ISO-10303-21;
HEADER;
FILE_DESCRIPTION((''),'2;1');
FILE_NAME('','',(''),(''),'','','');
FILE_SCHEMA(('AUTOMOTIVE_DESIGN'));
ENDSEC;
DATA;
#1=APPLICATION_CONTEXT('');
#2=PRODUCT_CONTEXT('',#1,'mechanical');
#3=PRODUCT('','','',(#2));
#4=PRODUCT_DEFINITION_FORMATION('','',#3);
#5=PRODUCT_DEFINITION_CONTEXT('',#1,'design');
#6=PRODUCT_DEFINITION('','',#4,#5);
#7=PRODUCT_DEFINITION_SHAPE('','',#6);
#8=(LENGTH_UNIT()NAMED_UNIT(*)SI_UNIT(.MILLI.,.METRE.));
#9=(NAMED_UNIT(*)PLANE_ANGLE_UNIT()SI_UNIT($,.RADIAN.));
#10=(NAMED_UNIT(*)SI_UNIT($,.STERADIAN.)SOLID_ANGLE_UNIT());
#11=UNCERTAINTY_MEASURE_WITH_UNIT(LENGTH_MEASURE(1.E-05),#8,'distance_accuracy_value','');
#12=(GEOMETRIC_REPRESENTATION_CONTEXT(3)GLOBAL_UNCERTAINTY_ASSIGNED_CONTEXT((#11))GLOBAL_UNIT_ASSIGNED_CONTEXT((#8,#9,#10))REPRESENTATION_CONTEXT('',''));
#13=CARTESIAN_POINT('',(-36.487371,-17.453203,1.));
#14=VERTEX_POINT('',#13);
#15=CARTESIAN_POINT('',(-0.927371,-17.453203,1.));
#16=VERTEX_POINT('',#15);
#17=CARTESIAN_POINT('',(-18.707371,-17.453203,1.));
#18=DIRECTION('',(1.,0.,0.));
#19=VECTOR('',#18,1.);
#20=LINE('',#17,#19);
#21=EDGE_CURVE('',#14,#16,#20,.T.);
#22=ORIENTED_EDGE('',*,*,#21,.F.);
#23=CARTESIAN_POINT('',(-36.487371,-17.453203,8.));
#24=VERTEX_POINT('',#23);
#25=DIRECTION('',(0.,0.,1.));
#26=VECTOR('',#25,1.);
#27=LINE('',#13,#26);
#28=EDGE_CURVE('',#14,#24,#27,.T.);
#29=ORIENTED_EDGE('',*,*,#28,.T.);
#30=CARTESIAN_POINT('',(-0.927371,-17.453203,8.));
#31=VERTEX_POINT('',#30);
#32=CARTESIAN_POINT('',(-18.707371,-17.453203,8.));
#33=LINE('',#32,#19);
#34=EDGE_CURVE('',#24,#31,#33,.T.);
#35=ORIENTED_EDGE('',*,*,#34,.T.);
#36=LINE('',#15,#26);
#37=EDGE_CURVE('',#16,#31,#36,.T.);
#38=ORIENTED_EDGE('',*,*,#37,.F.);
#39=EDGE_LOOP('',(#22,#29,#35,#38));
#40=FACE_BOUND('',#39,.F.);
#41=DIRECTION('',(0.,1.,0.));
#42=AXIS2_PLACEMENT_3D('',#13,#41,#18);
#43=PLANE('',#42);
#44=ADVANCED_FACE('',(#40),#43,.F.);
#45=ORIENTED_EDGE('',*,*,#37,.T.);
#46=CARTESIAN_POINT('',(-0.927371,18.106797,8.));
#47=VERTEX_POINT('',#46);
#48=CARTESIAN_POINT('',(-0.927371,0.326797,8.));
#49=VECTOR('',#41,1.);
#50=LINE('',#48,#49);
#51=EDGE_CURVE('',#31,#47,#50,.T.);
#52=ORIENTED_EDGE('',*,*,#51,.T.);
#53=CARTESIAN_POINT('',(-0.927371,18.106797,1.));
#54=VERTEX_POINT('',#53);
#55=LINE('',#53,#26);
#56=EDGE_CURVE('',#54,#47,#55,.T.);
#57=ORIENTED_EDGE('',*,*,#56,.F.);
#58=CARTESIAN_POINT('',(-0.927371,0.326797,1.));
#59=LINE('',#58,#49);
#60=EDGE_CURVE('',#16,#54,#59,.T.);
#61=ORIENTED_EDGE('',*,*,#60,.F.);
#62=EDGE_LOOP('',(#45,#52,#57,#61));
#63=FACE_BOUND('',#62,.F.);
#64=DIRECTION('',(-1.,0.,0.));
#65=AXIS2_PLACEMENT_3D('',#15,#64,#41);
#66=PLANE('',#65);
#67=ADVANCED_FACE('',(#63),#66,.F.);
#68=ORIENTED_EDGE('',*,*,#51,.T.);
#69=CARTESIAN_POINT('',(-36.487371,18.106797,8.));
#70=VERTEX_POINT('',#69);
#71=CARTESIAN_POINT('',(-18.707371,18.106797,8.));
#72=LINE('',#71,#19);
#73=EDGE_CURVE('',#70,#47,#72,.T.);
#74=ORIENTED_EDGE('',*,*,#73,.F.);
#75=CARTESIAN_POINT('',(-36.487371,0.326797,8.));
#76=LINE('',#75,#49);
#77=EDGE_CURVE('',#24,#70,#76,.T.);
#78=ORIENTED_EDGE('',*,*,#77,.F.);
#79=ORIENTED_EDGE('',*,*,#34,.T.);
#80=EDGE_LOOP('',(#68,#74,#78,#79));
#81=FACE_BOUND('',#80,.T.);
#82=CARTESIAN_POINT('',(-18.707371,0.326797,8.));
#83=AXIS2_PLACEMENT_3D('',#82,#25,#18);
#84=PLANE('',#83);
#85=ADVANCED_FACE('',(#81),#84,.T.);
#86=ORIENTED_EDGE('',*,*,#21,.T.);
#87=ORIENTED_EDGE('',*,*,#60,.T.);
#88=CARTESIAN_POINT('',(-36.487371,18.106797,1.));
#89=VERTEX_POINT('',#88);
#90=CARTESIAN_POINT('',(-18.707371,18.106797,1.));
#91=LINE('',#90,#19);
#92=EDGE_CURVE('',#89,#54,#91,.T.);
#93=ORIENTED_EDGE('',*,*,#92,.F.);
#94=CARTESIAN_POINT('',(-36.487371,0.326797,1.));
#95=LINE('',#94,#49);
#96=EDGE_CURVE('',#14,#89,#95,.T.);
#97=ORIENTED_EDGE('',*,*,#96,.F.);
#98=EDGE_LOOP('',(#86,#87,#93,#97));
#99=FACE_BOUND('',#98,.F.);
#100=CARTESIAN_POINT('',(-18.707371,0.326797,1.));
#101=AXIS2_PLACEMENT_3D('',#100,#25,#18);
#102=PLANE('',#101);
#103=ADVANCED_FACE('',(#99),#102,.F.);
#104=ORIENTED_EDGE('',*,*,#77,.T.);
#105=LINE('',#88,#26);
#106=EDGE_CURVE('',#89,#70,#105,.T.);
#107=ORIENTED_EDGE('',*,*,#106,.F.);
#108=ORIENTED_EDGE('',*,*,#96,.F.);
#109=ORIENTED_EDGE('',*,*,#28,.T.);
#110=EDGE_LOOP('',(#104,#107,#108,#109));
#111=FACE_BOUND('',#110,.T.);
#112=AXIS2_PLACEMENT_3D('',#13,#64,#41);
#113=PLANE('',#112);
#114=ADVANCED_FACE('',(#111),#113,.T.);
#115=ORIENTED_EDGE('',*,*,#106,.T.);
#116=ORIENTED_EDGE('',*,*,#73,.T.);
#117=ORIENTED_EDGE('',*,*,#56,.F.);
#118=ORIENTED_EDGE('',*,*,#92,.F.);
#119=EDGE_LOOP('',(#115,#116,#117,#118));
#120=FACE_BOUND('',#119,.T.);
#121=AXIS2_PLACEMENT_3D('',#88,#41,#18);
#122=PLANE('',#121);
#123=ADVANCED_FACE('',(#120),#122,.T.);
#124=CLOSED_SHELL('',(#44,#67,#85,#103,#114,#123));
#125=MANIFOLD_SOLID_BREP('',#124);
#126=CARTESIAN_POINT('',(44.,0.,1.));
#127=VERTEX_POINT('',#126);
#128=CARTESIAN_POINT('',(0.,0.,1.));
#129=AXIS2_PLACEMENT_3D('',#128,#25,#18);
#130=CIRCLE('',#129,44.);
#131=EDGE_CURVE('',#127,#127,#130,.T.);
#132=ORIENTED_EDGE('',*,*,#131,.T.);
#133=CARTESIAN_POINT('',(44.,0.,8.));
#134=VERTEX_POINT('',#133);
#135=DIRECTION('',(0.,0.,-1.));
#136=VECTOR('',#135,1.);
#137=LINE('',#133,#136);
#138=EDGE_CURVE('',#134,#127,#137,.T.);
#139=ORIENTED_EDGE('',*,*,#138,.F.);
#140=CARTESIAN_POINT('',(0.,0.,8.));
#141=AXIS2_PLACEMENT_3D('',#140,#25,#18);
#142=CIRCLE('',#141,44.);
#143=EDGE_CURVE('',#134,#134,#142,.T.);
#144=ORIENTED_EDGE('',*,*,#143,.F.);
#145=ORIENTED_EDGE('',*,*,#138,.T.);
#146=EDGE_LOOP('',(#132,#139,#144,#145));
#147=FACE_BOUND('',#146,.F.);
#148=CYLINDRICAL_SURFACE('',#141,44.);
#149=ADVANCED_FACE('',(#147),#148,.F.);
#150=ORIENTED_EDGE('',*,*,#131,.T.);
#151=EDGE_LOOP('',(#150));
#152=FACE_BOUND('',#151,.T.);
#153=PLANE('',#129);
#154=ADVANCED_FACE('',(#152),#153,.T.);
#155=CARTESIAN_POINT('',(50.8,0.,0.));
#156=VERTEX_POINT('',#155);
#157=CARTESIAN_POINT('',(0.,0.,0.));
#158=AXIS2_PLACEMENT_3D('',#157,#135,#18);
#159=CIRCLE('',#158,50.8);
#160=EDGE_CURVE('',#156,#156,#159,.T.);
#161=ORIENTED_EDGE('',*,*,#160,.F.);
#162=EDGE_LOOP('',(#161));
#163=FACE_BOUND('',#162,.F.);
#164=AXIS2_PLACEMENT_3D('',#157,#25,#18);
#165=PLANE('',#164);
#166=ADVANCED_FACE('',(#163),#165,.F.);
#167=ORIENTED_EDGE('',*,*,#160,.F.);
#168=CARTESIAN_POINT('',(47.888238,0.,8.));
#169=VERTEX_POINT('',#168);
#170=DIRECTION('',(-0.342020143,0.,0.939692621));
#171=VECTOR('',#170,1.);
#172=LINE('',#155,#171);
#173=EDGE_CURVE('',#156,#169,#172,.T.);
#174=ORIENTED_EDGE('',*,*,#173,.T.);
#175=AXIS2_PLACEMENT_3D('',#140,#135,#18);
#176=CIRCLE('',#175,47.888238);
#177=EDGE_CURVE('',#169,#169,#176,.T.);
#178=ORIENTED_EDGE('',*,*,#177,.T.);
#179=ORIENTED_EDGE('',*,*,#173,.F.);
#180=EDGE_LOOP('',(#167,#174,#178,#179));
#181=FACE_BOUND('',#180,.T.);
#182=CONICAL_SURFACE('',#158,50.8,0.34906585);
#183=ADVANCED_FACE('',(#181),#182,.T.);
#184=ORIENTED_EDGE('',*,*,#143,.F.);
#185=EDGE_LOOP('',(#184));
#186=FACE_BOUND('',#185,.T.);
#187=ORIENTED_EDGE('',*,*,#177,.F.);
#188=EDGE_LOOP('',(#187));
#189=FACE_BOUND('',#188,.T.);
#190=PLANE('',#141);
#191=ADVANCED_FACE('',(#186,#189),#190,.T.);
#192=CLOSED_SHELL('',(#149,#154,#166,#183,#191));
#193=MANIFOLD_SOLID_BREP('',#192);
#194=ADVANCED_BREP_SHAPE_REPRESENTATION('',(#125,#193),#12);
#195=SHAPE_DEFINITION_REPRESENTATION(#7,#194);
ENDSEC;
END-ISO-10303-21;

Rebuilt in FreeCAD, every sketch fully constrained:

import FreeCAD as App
import Part
import Sketcher
from FreeCAD import Vector


def add_polygon(sketch, points):
    """Adds a closed chain of lines whose ends are joined by coincident constraints."""
    first, n = sketch.GeometryCount, len(points)
    for a, b in zip(points, points[1:] + points[:1]):
        sketch.addGeometry(Part.LineSegment(App.Vector(*a, 0), App.Vector(*b, 0)), False)
    for i in range(n):
        sketch.addConstraint(Sketcher.Constraint("Coincident", first + i, 2, first + (i + 1) % n, 1))

doc = App.newDocument("Part")
body = doc.addObject("PartDesign::Body", "Body")

sketch1 = doc.addObject("Sketcher::SketchObject", "Sketch")
body.addObject(sketch1)
sketch1.AttachmentSupport = (doc.XY_Plane, [""])
sketch1.MapMode = "FlatFace"
sketch1.addGeometry(Part.Circle(Vector(0, 0, 0), Vector(0, 0, 1), 51), False)
sketch1.addConstraint(Sketcher.Constraint("Coincident", 0, 3, -1, 1))
sketch1.addConstraint(Sketcher.Constraint("Diameter", 0, 101.6))
pad1 = doc.addObject("PartDesign::Pad", "Pad")
body.addObject(pad1)
pad1.Profile = sketch1
pad1.Length = 8
pad1.TaperAngle = -20

sketch2 = doc.addObject("Sketcher::SketchObject", "Sketch001")
body.addObject(sketch2)
sketch2.AttachmentSupport = (doc.XY_Plane, [""])
sketch2.MapMode = "FlatFace"
sketch2.AttachmentOffset = App.Placement(Vector(0, 0, 8), App.Rotation())
sketch2.addGeometry(Part.Circle(Vector(0, 0, 0), Vector(0, 0, 1), 44), False)
sketch2.addConstraint(Sketcher.Constraint("Coincident", 0, 3, -1, 1))
sketch2.addConstraint(Sketcher.Constraint("Diameter", 0, 88.0))
pocket1 = doc.addObject("PartDesign::Pocket", "Pocket")
body.addObject(pocket1)
pocket1.Profile = sketch2
pocket1.Length = 7

sketch3 = doc.addObject("Sketcher::SketchObject", "Sketch002")
body.addObject(sketch3)
sketch3.AttachmentSupport = (doc.YZ_Plane, [""])
sketch3.MapMode = "FlatFace"
sketch3.AttachmentOffset = App.Placement(Vector(0, 0, 40), App.Rotation())
sketch3.addGeometry(Part.Circle(Vector(0, 5.6, 0), Vector(0, 0, 1), 2.2), False)
sketch3.addConstraint(Sketcher.Constraint("PointOnObject", 0, 3, -2))
sketch3.addConstraint(Sketcher.Constraint("Diameter", 0, 4.317089))
sketch3.addConstraint(Sketcher.Constraint("DistanceY", -1, 1, 0, 3, 5.612212))
pocket2 = doc.addObject("PartDesign::Pocket", "Pocket001")
body.addObject(pocket2)
pocket2.Profile = sketch3
pocket2.Length = 25.4
body2 = doc.addObject("PartDesign::Body", "Body001")

sketch4 = doc.addObject("Sketcher::SketchObject", "Sketch003")
body2.addObject(sketch4)
sketch4.AttachmentSupport = (doc.getObject("XY_Plane001"), [""])
sketch4.MapMode = "FlatFace"
sketch4.AttachmentOffset = App.Placement(Vector(0, 0, 1), App.Rotation())
add_polygon(sketch4, [(-36, 18), (-36, -17), (-1, -17), (-1, 18)])
sketch4.addConstraint(Sketcher.Constraint("Vertical", 0))
sketch4.addConstraint(Sketcher.Constraint("Horizontal", 1))
sketch4.addConstraint(Sketcher.Constraint("Vertical", 2))
sketch4.addConstraint(Sketcher.Constraint("Horizontal", 3))
sketch4.addConstraint(Sketcher.Constraint("Equal", 3, 0))
sketch4.addConstraint(Sketcher.Constraint("DistanceX", 1, 1, 1, 2, 35.56))
sketch4.addConstraint(Sketcher.Constraint("DistanceX", 0, 2, -1, 1, 36.487371))
sketch4.addConstraint(Sketcher.Constraint("DistanceY", 0, 2, -1, 1, 17.453203))
pad2 = doc.addObject("PartDesign::Pad", "Pad001")
body2.addObject(pad2)
pad2.Profile = sketch4
pad2.Length = 7

doc.recompute()
